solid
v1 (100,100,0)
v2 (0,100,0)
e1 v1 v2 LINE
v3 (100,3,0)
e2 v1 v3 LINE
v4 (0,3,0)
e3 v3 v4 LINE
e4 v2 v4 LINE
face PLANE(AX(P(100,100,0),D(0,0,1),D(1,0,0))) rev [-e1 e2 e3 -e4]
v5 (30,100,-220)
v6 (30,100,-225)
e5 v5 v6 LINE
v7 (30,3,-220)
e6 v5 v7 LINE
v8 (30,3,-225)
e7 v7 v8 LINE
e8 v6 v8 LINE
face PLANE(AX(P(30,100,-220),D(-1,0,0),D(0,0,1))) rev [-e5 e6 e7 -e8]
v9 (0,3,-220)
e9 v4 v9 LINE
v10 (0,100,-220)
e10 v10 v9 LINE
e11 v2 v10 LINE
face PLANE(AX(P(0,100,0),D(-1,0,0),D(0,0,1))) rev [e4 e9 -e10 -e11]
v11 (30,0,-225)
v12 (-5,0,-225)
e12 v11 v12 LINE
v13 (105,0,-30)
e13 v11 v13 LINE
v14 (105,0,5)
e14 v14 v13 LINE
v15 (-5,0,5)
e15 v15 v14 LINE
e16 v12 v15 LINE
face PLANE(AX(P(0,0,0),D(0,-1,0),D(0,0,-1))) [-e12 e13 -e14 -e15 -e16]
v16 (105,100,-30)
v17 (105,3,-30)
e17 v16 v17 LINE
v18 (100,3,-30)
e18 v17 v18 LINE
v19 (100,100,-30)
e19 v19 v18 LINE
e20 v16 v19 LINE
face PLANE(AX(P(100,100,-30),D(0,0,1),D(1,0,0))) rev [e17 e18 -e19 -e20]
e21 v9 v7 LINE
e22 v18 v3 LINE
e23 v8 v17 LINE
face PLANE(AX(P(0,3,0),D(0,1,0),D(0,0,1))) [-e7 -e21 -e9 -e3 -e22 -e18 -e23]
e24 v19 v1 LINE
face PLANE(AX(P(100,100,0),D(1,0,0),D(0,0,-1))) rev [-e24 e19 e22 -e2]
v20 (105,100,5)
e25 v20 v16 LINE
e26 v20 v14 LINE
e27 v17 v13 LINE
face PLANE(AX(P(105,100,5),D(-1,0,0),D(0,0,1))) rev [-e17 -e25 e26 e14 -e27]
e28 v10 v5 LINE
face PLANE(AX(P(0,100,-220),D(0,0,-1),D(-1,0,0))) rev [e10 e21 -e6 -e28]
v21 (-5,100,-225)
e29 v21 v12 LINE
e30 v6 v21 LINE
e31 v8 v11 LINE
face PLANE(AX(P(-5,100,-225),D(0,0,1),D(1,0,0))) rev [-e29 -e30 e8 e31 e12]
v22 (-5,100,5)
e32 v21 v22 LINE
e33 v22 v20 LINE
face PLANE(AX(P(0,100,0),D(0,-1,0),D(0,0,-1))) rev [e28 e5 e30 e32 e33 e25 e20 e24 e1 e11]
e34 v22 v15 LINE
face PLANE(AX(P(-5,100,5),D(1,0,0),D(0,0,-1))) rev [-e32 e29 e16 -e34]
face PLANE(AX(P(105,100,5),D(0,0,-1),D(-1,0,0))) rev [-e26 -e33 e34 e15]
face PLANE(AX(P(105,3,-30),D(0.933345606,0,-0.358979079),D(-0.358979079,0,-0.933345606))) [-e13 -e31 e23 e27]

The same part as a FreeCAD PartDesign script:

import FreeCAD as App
import Part
import Sketcher

V = App.Vector
Q = App.Units.Quantity

doc = App.newDocument("Part")
body = doc.addObject("PartDesign::Body", "Body")

# Sketch on XZ plane
sketch1 = doc.addObject("Sketcher::SketchObject", "Sketch")
body.addObject(sketch1)
sketch1.AttachmentSupport = (doc.XZ_Plane, [""])
sketch1.MapMode = "FlatFace"
sketch1.addGeometry(Part.LineSegment(V(100, 0, 0), V(0, 0, 0)), False)
sketch1.addGeometry(Part.LineSegment(V(0, 0, 0), V(0, -220, 0)), False)
sketch1.addGeometry(Part.LineSegment(V(0, -220, 0), V(30, -220, 0)), False)
sketch1.addGeometry(Part.LineSegment(V(30, -220, 0), V(30, -225, 0)), False)
sketch1.addGeometry(Part.LineSegment(V(30, -225, 0), V(-5, -225, 0)), False)
sketch1.addGeometry(Part.LineSegment(V(-5, -225, 0), V(-5, 5, 0)), False)
sketch1.addGeometry(Part.LineSegment(V(-5, 5, 0), V(105, 5, 0)), False)
sketch1.addGeometry(Part.LineSegment(V(105, 5, 0), V(105, -30, 0)), False)
sketch1.addGeometry(Part.LineSegment(V(105, -30, 0), V(100, -30, 0)), False)
sketch1.addGeometry(Part.LineSegment(V(100, -30, 0), V(100, 0, 0)), False)
sketch1.addConstraint(Sketcher.Constraint("Coincident", 0, 2, 1, 1))
sketch1.addConstraint(Sketcher.Constraint("Coincident", 1, 2, 2, 1))
sketch1.addConstraint(Sketcher.Constraint("Coincident", 2, 2, 3, 1))
sketch1.addConstraint(Sketcher.Constraint("Coincident", 3, 2, 4, 1))
sketch1.addConstraint(Sketcher.Constraint("Coincident", 4, 2, 5, 1))
sketch1.addConstraint(Sketcher.Constraint("Coincident", 5, 2, 6, 1))
sketch1.addConstraint(Sketcher.Constraint("Coincident", 6, 2, 7, 1))
sketch1.addConstraint(Sketcher.Constraint("Coincident", 7, 2, 8, 1))
sketch1.addConstraint(Sketcher.Constraint("Coincident", 8, 2, 9, 1))
sketch1.addConstraint(Sketcher.Constraint("Coincident", 9, 2, 0, 1))
sketch1.addConstraint(Sketcher.Constraint("Horizontal", 0))
sketch1.addConstraint(Sketcher.Constraint("Vertical", 1))
sketch1.addConstraint(Sketcher.Constraint("Horizontal", 2))
sketch1.addConstraint(Sketcher.Constraint("Vertical", 3))
sketch1.addConstraint(Sketcher.Constraint("Horizontal", 4))
sketch1.addConstraint(Sketcher.Constraint("Vertical", 5))
sketch1.addConstraint(Sketcher.Constraint("Horizontal", 6))
sketch1.addConstraint(Sketcher.Constraint("Vertical", 7))
sketch1.addConstraint(Sketcher.Constraint("Horizontal", 8))
sketch1.addConstraint(Sketcher.Constraint("Vertical", 9))
sketch1.addConstraint(Sketcher.Constraint("Coincident", 0, 2, -1, 1))
sketch1.addConstraint(Sketcher.Constraint("Equal", 8, 3))
sketch1.addConstraint(Sketcher.Constraint("Equal", 4, 7))
sketch1.addConstraint(Sketcher.Constraint("Equal", 2, 9))
sketch1.addConstraint(Sketcher.Constraint("DistanceX", 0, 2, 0, 1, Q("100 mm")))
sketch1.addConstraint(Sketcher.Constraint("DistanceX", 2, 1, 2, 2, Q("30 mm")))
sketch1.addConstraint(Sketcher.Constraint("DistanceX", 4, 2, 4, 1, Q("35 mm")))
sketch1.addConstraint(Sketcher.Constraint("DistanceX", 6, 1, 6, 2, Q("110 mm")))
sketch1.addConstraint(Sketcher.Constraint("DistanceY", 1, 2, 1, 1, Q("220 mm")))
pad1 = doc.addObject("PartDesign::Pad", "Pad")
body.addObject(pad1)
pad1.Profile = sketch1
pad1.Length = 100
pad1.Reversed = True

# Sketch on XZ plane
sketch2 = doc.addObject("Sketcher::SketchObject", "Sketch001")
body.addObject(sketch2)
sketch2.AttachmentSupport = (doc.XZ_Plane, [""])
sketch2.MapMode = "FlatFace"
sketch2.addGeometry(Part.LineSegment(V(-5, -225, 0), V(30, -225, 0)), False)
sketch2.addGeometry(Part.LineSegment(V(30, -225, 0), V(105, -30, 0)), False)
sketch2.addGeometry(Part.LineSegment(V(105, -30, 0), V(105, 5, 0)), False)
sketch2.addGeometry(Part.LineSegment(V(105, 5, 0), V(-5, 5, 0)), False)
sketch2.addGeometry(Part.LineSegment(V(-5, 5, 0), V(-5, -225, 0)), False)
sketch2.addConstraint(Sketcher.Constraint("Coincident", 0, 2, 1, 1))
sketch2.addConstraint(Sketcher.Constraint("Coincident", 1, 2, 2, 1))
sketch2.addConstraint(Sketcher.Constraint("Coincident", 2, 2, 3, 1))
sketch2.addConstraint(Sketcher.Constraint("Coincident", 3, 2, 4, 1))
sketch2.addConstraint(Sketcher.Constraint("Coincident", 4, 2, 0, 1))
sketch2.addConstraint(Sketcher.Constraint("Horizontal", 0))
sketch2.addConstraint(Sketcher.Constraint("Vertical", 2))
sketch2.addConstraint(Sketcher.Constraint("Horizontal", 3))
sketch2.addConstraint(Sketcher.Constraint("Vertical", 4))
sketch2.addConstraint(Sketcher.Constraint("Equal", 0, 2))
sketch2.addConstraint(Sketcher.Constraint("DistanceX", 0, 1, 0, 2, Q("35 mm")))
sketch2.addConstraint(Sketcher.Constraint("DistanceX", 3, 2, 3, 1, Q("110 mm")))
sketch2.addConstraint(Sketcher.Constraint("DistanceY", 4, 2, 4, 1, Q("230 mm")))
sketch2.addConstraint(Sketcher.Constraint("DistanceX", -1, 1, 0, 2, Q("30 mm")))
sketch2.addConstraint(Sketcher.Constraint("DistanceY", 0, 2, -1, 1, Q("225 mm")))
pad2 = doc.addObject("PartDesign::Pad", "Pad001")
body.addObject(pad2)
pad2.Profile = sketch2
pad2.Length = 3
pad2.Reversed = True

doc.recompute()
